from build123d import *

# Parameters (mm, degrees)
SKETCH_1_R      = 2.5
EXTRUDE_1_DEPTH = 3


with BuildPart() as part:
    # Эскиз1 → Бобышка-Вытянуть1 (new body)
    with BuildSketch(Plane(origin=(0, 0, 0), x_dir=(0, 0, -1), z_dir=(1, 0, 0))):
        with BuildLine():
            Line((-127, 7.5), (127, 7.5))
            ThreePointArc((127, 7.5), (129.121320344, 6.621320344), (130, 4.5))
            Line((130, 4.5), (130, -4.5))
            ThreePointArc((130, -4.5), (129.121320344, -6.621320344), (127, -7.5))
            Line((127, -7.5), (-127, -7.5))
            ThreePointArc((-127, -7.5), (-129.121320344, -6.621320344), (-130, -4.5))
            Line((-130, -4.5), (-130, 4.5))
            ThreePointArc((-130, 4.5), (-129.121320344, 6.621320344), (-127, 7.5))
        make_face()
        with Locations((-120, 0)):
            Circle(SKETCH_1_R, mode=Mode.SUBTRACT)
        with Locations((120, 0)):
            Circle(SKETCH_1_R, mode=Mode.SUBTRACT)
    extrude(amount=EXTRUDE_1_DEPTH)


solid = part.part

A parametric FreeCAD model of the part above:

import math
import FreeCAD as App
import Part
import Sketcher
Q = App.Units.Quantity

doc = App.newDocument("Part")
body = doc.addObject("PartDesign::Body", "Body")

# Sketch on YZ plane
sketch1 = doc.addObject("Sketcher::SketchObject", "Sketch")
body.addObject(sketch1)
sketch1.AttachmentSupport = (doc.YZ_Plane, [""])
sketch1.MapMode = "FlatFace"
sketch1.addGeometry(Part.LineSegment(App.Vector(7.5, -127, 0), App.Vector(7.5, 127, 0)), False)
sketch1.addGeometry(Part.ArcOfCircle(Part.Circle(App.Vector(4.5, 127, 0), App.Vector(0, 0, 1), 3), math.radians(0), math.radians(90)), False)
sketch1.addGeometry(Part.LineSegment(App.Vector(4.5, 130, 0), App.Vector(-4.5, 130, 0)), False)
sketch1.addGeometry(Part.ArcOfCircle(Part.Circle(App.Vector(-4.5, 127, 0), App.Vector(0, 0, 1), 3), math.radians(90), math.radians(180)), False)
sketch1.addGeometry(Part.LineSegment(App.Vector(-7.5, 127, 0), App.Vector(-7.5, -127, 0)), False)
sketch1.addGeometry(Part.ArcOfCircle(Part.Circle(App.Vector(-4.5, -127, 0), App.Vector(0, 0, 1), 3), math.radians(180), math.radians(270)), False)
sketch1.addGeometry(Part.LineSegment(App.Vector(-4.5, -130, 0), App.Vector(4.5, -130, 0)), False)
sketch1.addGeometry(Part.ArcOfCircle(Part.Circle(App.Vector(4.5, -127, 0), App.Vector(0, 0, 1), 3), math.radians(-90), math.radians(0)), False)
sketch1.addGeometry(Part.Circle(App.Vector(0, -120, 0), App.Vector(0, 0, 1), 2.5), False)
sketch1.addGeometry(Part.Circle(App.Vector(0, 120, 0), App.Vector(0, 0, 1), 2.5), False)
sketch1.addConstraint(Sketcher.Constraint("Tangent", 0, 2, 1, 1))
sketch1.addConstraint(Sketcher.Constraint("Tangent", 1, 2, 2, 1))
sketch1.addConstraint(Sketcher.Constraint("Tangent", 2, 2, 3, 1))
sketch1.addConstraint(Sketcher.Constraint("Tangent", 3, 2, 4, 1))
sketch1.addConstraint(Sketcher.Constraint("Tangent", 4, 2, 5, 1))
sketch1.addConstraint(Sketcher.Constraint("Tangent", 5, 2, 6, 1))
sketch1.addConstraint(Sketcher.Constraint("Tangent", 6, 2, 7, 1))
sketch1.addConstraint(Sketcher.Constraint("Tangent", 7, 2, 0, 1))
sketch1.addConstraint(Sketcher.Constraint("Vertical", 0))
sketch1.addConstraint(Sketcher.Constraint("Horizontal", 2))
sketch1.addConstraint(Sketcher.Constraint("Vertical", 4))
sketch1.addConstraint(Sketcher.Constraint("Horizontal", 6))
sketch1.addConstraint(Sketcher.Constraint("Equal", 1, 3))
sketch1.addConstraint(Sketcher.Constraint("Equal", 3, 5))
sketch1.addConstraint(Sketcher.Constraint("Equal", 5, 7))
sketch1.addConstraint(Sketcher.Constraint("Equal", 8, 9))
sketch1.addConstraint(Sketcher.Constraint("Symmetric", 1, 3, 5, 3, -1, 1))
sketch1.addConstraint(Sketcher.Constraint("Symmetric", 8, 3, 9, 3, -1, 1))
sketch1.addConstraint(Sketcher.Constraint("PointOnObject", 8, 3, -2))
sketch1.addConstraint(Sketcher.Constraint("Diameter", 8, Q("5 mm")))
sketch1.addConstraint(Sketcher.Constraint("Radius", 1, Q("3 mm")))
sketch1.addConstraint(Sketcher.Constraint("DistanceX", 2, 2, 2, 1, Q("9 mm")))
sketch1.addConstraint(Sketcher.Constraint("DistanceY", 0, 1, 0, 2, Q("254 mm")))
sketch1.addConstraint(Sketcher.Constraint("DistanceY", 8, 3, -1, 1, Q("120 mm")))
pad1 = doc.addObject("PartDesign::Pad", "Pad")
body.addObject(pad1)
pad1.Profile = sketch1
pad1.Length = 3

doc.recompute()
